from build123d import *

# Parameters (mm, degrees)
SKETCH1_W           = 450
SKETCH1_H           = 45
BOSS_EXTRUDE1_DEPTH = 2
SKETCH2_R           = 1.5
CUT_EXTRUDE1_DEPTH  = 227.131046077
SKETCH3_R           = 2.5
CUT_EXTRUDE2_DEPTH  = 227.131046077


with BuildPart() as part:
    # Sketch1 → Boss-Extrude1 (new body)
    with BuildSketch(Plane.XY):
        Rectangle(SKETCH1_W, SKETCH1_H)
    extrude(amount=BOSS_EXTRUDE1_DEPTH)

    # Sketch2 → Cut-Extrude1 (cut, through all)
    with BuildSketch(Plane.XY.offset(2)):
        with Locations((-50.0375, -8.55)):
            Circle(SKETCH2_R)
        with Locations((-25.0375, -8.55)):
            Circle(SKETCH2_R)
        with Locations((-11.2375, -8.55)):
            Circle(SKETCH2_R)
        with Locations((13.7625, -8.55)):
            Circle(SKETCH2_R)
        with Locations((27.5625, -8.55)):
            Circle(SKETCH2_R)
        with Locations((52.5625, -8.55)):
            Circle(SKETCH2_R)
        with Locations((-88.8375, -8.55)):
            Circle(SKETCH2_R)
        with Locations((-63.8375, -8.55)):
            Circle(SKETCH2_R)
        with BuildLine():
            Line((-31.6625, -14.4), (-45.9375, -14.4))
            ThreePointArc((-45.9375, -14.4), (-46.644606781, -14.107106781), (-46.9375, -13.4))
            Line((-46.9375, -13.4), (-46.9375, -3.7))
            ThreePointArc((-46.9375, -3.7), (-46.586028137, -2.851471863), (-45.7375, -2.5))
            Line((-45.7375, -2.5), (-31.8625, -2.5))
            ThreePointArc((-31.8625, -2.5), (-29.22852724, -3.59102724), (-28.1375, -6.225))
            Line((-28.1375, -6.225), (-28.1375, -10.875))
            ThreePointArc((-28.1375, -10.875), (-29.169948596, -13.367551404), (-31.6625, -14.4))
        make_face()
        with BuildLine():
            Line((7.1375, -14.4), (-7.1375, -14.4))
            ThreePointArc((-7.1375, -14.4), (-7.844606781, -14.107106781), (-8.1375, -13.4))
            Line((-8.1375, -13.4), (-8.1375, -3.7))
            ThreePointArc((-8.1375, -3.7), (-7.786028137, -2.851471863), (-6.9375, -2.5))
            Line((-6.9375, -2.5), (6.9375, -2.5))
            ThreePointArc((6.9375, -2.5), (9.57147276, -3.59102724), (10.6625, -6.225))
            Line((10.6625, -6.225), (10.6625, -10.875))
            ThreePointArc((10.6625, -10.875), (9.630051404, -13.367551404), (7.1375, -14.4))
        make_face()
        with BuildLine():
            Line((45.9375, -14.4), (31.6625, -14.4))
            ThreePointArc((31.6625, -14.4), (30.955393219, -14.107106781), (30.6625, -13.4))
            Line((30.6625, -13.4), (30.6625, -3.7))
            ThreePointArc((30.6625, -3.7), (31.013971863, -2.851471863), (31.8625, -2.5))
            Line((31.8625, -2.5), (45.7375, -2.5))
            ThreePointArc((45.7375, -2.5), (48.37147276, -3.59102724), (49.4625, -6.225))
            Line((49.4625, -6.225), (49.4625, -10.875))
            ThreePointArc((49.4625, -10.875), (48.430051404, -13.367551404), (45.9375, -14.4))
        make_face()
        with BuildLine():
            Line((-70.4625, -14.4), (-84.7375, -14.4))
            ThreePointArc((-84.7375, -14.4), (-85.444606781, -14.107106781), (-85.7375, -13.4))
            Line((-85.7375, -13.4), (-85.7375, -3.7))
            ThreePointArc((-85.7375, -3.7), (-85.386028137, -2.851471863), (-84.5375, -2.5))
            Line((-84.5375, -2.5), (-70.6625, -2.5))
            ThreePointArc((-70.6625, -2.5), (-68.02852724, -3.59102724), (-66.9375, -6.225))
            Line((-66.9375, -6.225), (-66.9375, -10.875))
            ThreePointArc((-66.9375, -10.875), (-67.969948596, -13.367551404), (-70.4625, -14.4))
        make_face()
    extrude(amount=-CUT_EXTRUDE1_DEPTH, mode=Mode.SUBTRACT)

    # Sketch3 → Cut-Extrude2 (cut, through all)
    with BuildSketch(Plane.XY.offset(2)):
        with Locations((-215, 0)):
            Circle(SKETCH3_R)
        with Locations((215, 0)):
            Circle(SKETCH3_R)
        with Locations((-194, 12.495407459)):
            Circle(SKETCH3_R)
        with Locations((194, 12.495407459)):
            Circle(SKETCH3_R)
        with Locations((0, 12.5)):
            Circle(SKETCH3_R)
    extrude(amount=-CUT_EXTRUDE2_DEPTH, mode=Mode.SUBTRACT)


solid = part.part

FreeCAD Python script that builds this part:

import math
import FreeCAD as App
import Part
import Sketcher

V = App.Vector
Q = App.Units.Quantity


def add_polygon(sketch, points):
    """Adds a closed chain of lines whose ends are joined by coincident constraints."""
    first, n = sketch.GeometryCount, len(points)
    for a, b in zip(points, points[1:] + points[:1]):
        sketch.addGeometry(Part.LineSegment(App.Vector(*a, 0), App.Vector(*b, 0)), False)
    for i in range(n):
        sketch.addConstraint(Sketcher.Constraint("Coincident", first + i, 2, first + (i + 1) % n, 1))

doc = App.newDocument("Part")
params = doc.addObject("Spreadsheet::Sheet", "Params")
for row, (alias, value) in enumerate([
    ("sketch1_width", "450 mm"),
    ("sketch1_height", "45 mm"),
    ("pad1_length", "2 mm"),
    ("sketch2_diameter", "3 mm"),
    ("sketch2_radius", "1 mm"),
    ("sketch2_radius2", "1.2 mm"),
    ("sketch2_height", "9.7 mm"),
    ("sketch3_diameter", "5 mm"),
], start=1):
    params.set(f"A{row}", alias)
    params.set(f"B{row}", "=" + value)
    params.setAlias(f"B{row}", alias)

body = doc.addObject("PartDesign::Body", "Body")

# Sketch on XY plane
sketch1 = body.newObject("Sketcher::SketchObject", "Sketch")
sketch1.AttachmentSupport = (doc.getObject("XY_Plane"), [""])
sketch1.MapMode = "FlatFace"
add_polygon(sketch1, [(-225, 22), (-225, -22), (225, -22), (225, 22)])  # lines 0-3
sketch1.addConstraint(Sketcher.Constraint("Vertical", 0))
sketch1.addConstraint(Sketcher.Constraint("Horizontal", 1))
sketch1.addConstraint(Sketcher.Constraint("Vertical", 2))
sketch1.addConstraint(Sketcher.Constraint("Horizontal", 3))
sketch1.addConstraint(Sketcher.Constraint("Symmetric", 0, 2, 2, 2, -1, 1))
sketch1.addConstraint(Sketcher.Constraint("DistanceX", 1, 1, 1, 2, Q("450 mm")))
sketch1.addConstraint(Sketcher.Constraint("DistanceY", 0, 2, 0, 1, Q("45 mm")))
sketch1.setExpression("Constraints[9]", "Params.sketch1_width")
sketch1.setExpression("Constraints[10]", "Params.sketch1_height")
pad1 = body.newObject("PartDesign::Pad", "Pad")
pad1.Profile = sketch1
pad1.setExpression("Length", "Params.pad1_length")

# Sketch on XY plane
sketch2 = body.newObject("Sketcher::SketchObject", "Sketch001")
sketch2.AttachmentSupport = (doc.getObject("XY_Plane"), [""])
sketch2.MapMode = "FlatFace"
sketch2.AttachmentOffset = App.Placement(V(0, 0, 2), App.Rotation())
sketch2.addGeometry(Part.Circle(V(-50, -8.6, 0), V(0, 0, 1), 1.5), False)
sketch2.addGeometry(Part.Circle(V(-25, -8.6, 0), V(0, 0, 1), 1.5), False)
sketch2.addGeometry(Part.Circle(V(-11.2, -8.6, 0), V(0, 0, 1), 1.5), False)
sketch2.addGeometry(Part.Circle(V(13.8, -8.6, 0), V(0, 0, 1), 1.5), False)
sketch2.addGeometry(Part.Circle(V(27.6, -8.6, 0), V(0, 0, 1), 1.5), False)
sketch2.addGeometry(Part.Circle(V(52.6, -8.6, 0), V(0, 0, 1), 1.5), False)
sketch2.addGeometry(Part.Circle(V(-88.8, -8.6, 0), V(0, 0, 1), 1.5), False)
sketch2.addGeometry(Part.Circle(V(-63.8, -8.6, 0), V(0, 0, 1), 1.5), False)
sketch2.addGeometry(Part.LineSegment(V(-45.9, -14.4, 0), V(-31.7, -14.4, 0)), False)
sketch2.addGeometry(Part.ArcOfCircle(Part.Circle(V(-31.7, -10.9, 0), V(0, 0, 1), 3.5), math.radians(-90), math.radians(0)), False)
sketch2.addGeometry(Part.LineSegment(V(-28.1, -10.9, 0), V(-28.1, -6.2, 0)), False)
sketch2.addGeometry(Part.ArcOfCircle(Part.Circle(V(-31.9, -6.2, 0), V(0, 0, 1), 3.7), math.radians(0), math.radians(90)), False)
sketch2.addGeometry(Part.LineSegment(V(-31.9, -2.5, 0), V(-45.7, -2.5, 0)), False)
sketch2.addGeometry(Part.ArcOfCircle(Part.Circle(V(-45.7, -3.7, 0), V(0, 0, 1), 1.2), math.radians(90), math.radians(180)), False)
sketch2.addGeometry(Part.LineSegment(V(-46.9, -3.7, 0), V(-46.9, -13.4, 0)), False)
sketch2.addGeometry(Part.ArcOfCircle(Part.Circle(V(-45.9, -13.4, 0), V(0, 0, 1), 1), math.radians(-180), math.radians(-90)), False)
sketch2.addGeometry(Part.LineSegment(V(-7.1, -14.4, 0), V(7.1, -14.4, 0)), False)
sketch2.addGeometry(Part.ArcOfCircle(Part.Circle(V(7.1, -10.9, 0), V(0, 0, 1), 3.5), math.radians(-90), math.radians(0)), False)
sketch2.addGeometry(Part.LineSegment(V(10.7, -10.9, 0), V(10.7, -6.2, 0)), False)
sketch2.addGeometry(Part.ArcOfCircle(Part.Circle(V(6.9, -6.2, 0), V(0, 0, 1), 3.7), math.radians(0), math.radians(90)), False)
sketch2.addGeometry(Part.LineSegment(V(6.9, -2.5, 0), V(-6.9, -2.5, 0)), False)
sketch2.addGeometry(Part.ArcOfCircle(Part.Circle(V(-6.9, -3.7, 0), V(0, 0, 1), 1.2), math.radians(90), math.radians(180)), False)
sketch2.addGeometry(Part.LineSegment(V(-8.1, -3.7, 0), V(-8.1, -13.4, 0)), False)
sketch2.addGeometry(Part.ArcOfCircle(Part.Circle(V(-7.1, -13.4, 0), V(0, 0, 1), 1), math.radians(-180), math.radians(-90)), False)
sketch2.addGeometry(Part.LineSegment(V(31.7, -14.4, 0), V(45.9, -14.4, 0)), False)
sketch2.addGeometry(Part.ArcOfCircle(Part.Circle(V(45.9, -10.9, 0), V(0, 0, 1), 3.5), math.radians(-90), math.radians(0)), False)
sketch2.addGeometry(Part.LineSegment(V(49.5, -10.9, 0), V(49.5, -6.2, 0)), False)
sketch2.addGeometry(Part.ArcOfCircle(Part.Circle(V(45.7, -6.2, 0), V(0, 0, 1), 3.7), math.radians(0), math.radians(90)), False)
sketch2.addGeometry(Part.LineSegment(V(45.7, -2.5, 0), V(31.9, -2.5, 0)), False)
sketch2.addGeometry(Part.ArcOfCircle(Part.Circle(V(31.9, -3.7, 0), V(0, 0, 1), 1.2), math.radians(90), math.radians(180)), False)
sketch2.addGeometry(Part.LineSegment(V(30.7, -3.7, 0), V(30.7, -13.4, 0)), False)
sketch2.addGeometry(Part.ArcOfCircle(Part.Circle(V(31.7, -13.4, 0), V(0, 0, 1), 1), math.radians(-180), math.radians(-90)), False)
sketch2.addGeometry(Part.LineSegment(V(-84.7, -14.4, 0), V(-70.5, -14.4, 0)), False)
sketch2.addGeometry(Part.ArcOfCircle(Part.Circle(V(-70.5, -10.9, 0), V(0, 0, 1), 3.5), math.radians(-90), math.radians(0)), False)
sketch2.addGeometry(Part.LineSegment(V(-66.9, -10.9, 0), V(-66.9, -6.2, 0)), False)
sketch2.addGeometry(Part.ArcOfCircle(Part.Circle(V(-70.7, -6.2, 0), V(0, 0, 1), 3.7), math.radians(0), math.radians(90)), False)
sketch2.addGeometry(Part.LineSegment(V(-70.7, -2.5, 0), V(-84.5, -2.5, 0)), False)
sketch2.addGeometry(Part.ArcOfCircle(Part.Circle(V(-84.5, -3.7, 0), V(0, 0, 1), 1.2), math.radians(90), math.radians(180)), False)
sketch2.addGeometry(Part.LineSegment(V(-85.7, -3.7, 0), V(-85.7, -13.4, 0)), False)
sketch2.addGeometry(Part.ArcOfCircle(Part.Circle(V(-84.7, -13.4, 0), V(0, 0, 1), 1), math.radians(-180), math.radians(-90)), False)
sketch2.addConstraint(Sketcher.Constraint("Tangent", 8, 2, 9, 1))
sketch2.addConstraint(Sketcher.Constraint("Tangent", 9, 2, 10, 1))
sketch2.addConstraint(Sketcher.Constraint("Tangent", 10, 2, 11, 1))
sketch2.addConstraint(Sketcher.Constraint("Tangent", 11, 2, 12, 1))
sketch2.addConstraint(Sketcher.Constraint("Tangent", 12, 2, 13, 1))
sketch2.addConstraint(Sketcher.Constraint("Tangent", 13, 2, 14, 1))
sketch2.addConstraint(Sketcher.Constraint("Tangent", 14, 2, 15, 1))
sketch2.addConstraint(Sketcher.Constraint("Tangent", 15, 2, 8, 1))
sketch2.addConstraint(Sketcher.Constraint("Tangent", 16, 2, 17, 1))
sketch2.addConstraint(Sketcher.Constraint("Tangent", 17, 2, 18, 1))
sketch2.addConstraint(Sketcher.Constraint("Tangent", 18, 2, 19, 1))
sketch2.addConstraint(Sketcher.Constraint("Tangent", 19, 2, 20, 1))
sketch2.addConstraint(Sketcher.Constraint("Tangent", 20, 2, 21, 1))
sketch2.addConstraint(Sketcher.Constraint("Tangent", 21, 2, 22, 1))
sketch2.addConstraint(Sketcher.Constraint("Tangent", 22, 2, 23, 1))
sketch2.addConstraint(Sketcher.Constraint("Tangent", 23, 2, 16, 1))
sketch2.addConstraint(Sketcher.Constraint("Tangent", 24, 2, 25, 1))
sketch2.addConstraint(Sketcher.Constraint("Tangent", 25, 2, 26, 1))
sketch2.addConstraint(Sketcher.Constraint("Tangent", 26, 2, 27, 1))
sketch2.addConstraint(Sketcher.Constraint("Tangent", 27, 2, 28, 1))
sketch2.addConstraint(Sketcher.Constraint("Tangent", 28, 2, 29, 1))
sketch2.addConstraint(Sketcher.Constraint("Tangent", 29, 2, 30, 1))
sketch2.addConstraint(Sketcher.Constraint("Tangent", 30, 2, 31, 1))
sketch2.addConstraint(Sketcher.Constraint("Tangent", 31, 2, 24, 1))
sketch2.addConstraint(Sketcher.Constraint("Tangent", 32, 2, 33, 1))
sketch2.addConstraint(Sketcher.Constraint("Tangent", 33, 2, 34, 1))
sketch2.addConstraint(Sketcher.Constraint("Tangent", 34, 2, 35, 1))
sketch2.addConstraint(Sketcher.Constraint("Tangent", 35, 2, 36, 1))
sketch2.addConstraint(Sketcher.Constraint("Tangent", 36, 2, 37, 1))
sketch2.addConstraint(Sketcher.Constraint("Tangent", 37, 2, 38, 1))
sketch2.addConstraint(Sketcher.Constraint("Tangent", 38, 2, 39, 1))
sketch2.addConstraint(Sketcher.Constraint("Tangent", 39, 2, 32, 1))
sketch2.addConstraint(Sketcher.Constraint("Horizontal", 8))
sketch2.addConstraint(Sketcher.Constraint("Vertical", 10))
sketch2.addConstraint(Sketcher.Constraint("Horizontal", 12))
sketch2.addConstraint(Sketcher.Constraint("Vertical", 14))
sketch2.addConstraint(Sketcher.Constraint("Horizontal", 16))
sketch2.addConstraint(Sketcher.Constraint("Vertical", 18))
sketch2.addConstraint(Sketcher.Constraint("Horizontal", 20))
sketch2.addConstraint(Sketcher.Constraint("Vertical", 22))
sketch2.addConstraint(Sketcher.Constraint("Horizontal", 24))
sketch2.addConstraint(Sketcher.Constraint("Vertical", 26))
sketch2.addConstraint(Sketcher.Constraint("Horizontal", 28))
sketch2.addConstraint(Sketcher.Constraint("Vertical", 30))
sketch2.addConstraint(Sketcher.Constraint("Horizontal", 32))
sketch2.addConstraint(Sketcher.Constraint("Vertical", 34))
sketch2.addConstraint(Sketcher.Constraint("Horizontal", 36))
sketch2.addConstraint(Sketcher.Constraint("Vertical", 38))
sketch2.addConstraint(Sketcher.Constraint("Equal", 0, 1))
sketch2.addConstraint(Sketcher.Constraint("Equal", 1, 2))
sketch2.addConstraint(Sketcher.Constraint("Equal", 2, 3))
sketch2.addConstraint(Sketcher.Constraint("Equal", 3, 4))
sketch2.addConstraint(Sketcher.Constraint("Equal", 4, 5))
sketch2.addConstraint(Sketcher.Constraint("Equal", 5, 6))
sketch2.addConstraint(Sketcher.Constraint("Equal", 6, 7))
sketch2.addConstraint(Sketcher.Constraint("Equal", 9, 17))
sketch2.addConstraint(Sketcher.Constraint("Equal", 11, 19))
sketch2.addConstraint(Sketcher.Constraint("Equal", 13, 21))
sketch2.addConstraint(Sketcher.Constraint("Equal", 15, 23))
sketch2.addConstraint(Sketcher.Constraint("Equal", 17, 25))
sketch2.addConstraint(Sketcher.Constraint("Equal", 19, 27))
sketch2.addConstraint(Sketcher.Constraint("Equal", 21, 29))
sketch2.addConstraint(Sketcher.Constraint("Equal", 23, 31))
sketch2.addConstraint(Sketcher.Constraint("Equal", 25, 33))
sketch2.addConstraint(Sketcher.Constraint("Equal", 27, 35))
sketch2.addConstraint(Sketcher.Constraint("Equal", 29, 37))
sketch2.addConstraint(Sketcher.Constraint("Equal", 31, 39))
sketch2.addConstraint(Sketcher.Constraint("Symmetric", 15, 2, 24, 2, -2))
sketch2.addConstraint(Sketcher.Constraint("Symmetric", 12, 2, 27, 2, -2))
sketch2.addConstraint(Sketcher.Constraint("Horizontal", 0, 3, 1, 3))
sketch2.addConstraint(Sketcher.Constraint("Horizontal", 1, 3, 2, 3))
sketch2.addConstraint(Sketcher.Constraint("Horizontal", 2, 3, 3, 3))
sketch2.addConstraint(Sketcher.Constraint("Horizontal", 3, 3, 4, 3))
sketch2.addConstraint(Sketcher.Constraint("Horizontal", 4, 3, 5, 3))
sketch2.addConstraint(Sketcher.Constraint("Horizontal", 5, 3, 6, 3))
sketch2.addConstraint(Sketcher.Constraint("Horizontal", 6, 3, 7, 3))
sketch2.addConstraint(Sketcher.Constraint("Horizontal", 9, 3, 17, 3))
sketch2.addConstraint(Sketcher.Constraint("Horizontal", 11, 3, 19, 3))
sketch2.addConstraint(Sketcher.Constraint("Horizontal", 25, 3, 33, 3))
sketch2.addConstraint(Sketcher.Constraint("Horizontal", 27, 3, 35, 3))
sketch2.addConstraint(Sketcher.Constraint("Equal", 8, 16))
sketch2.addConstraint(Sketcher.Constraint("Equal", 16, 24))
sketch2.addConstraint(Sketcher.Constraint("Equal", 24, 32))
sketch2.addConstraint(Sketcher.Constraint("Diameter", 0, Q("3 mm")))
sketch2.addConstraint(Sketcher.Constraint("Radius", 15, Q("1 mm")))
sketch2.addConstraint(Sketcher.Constraint("Radius", 13, Q("1.2 mm")))
sketch2.addConstraint(Sketcher.Constraint("DistanceY", 14, 2, 14, 1, Q("9.7 mm")))
sketch2.addConstraint(Sketcher.Constraint("Radius", 9, Q("3.525 mm")))
sketch2.addConstraint(Sketcher.Constraint("DistanceX", 0, 3, 1, 3, Q("25 mm")))
sketch2.addConstraint(Sketcher.Constraint("DistanceX", 2, 3, 3, 3, Q("25 mm")))
sketch2.addConstraint(Sketcher.Constraint("DistanceX", 4, 3, 5, 3, Q("25 mm")))
sketch2.addConstraint(Sketcher.Constraint("DistanceX", 6, 3, 7, 3, Q("25 mm")))
sketch2.addConstraint(Sketcher.Constraint("DistanceX", 19, 3, 25, 3, Q("39 mm")))
sketch2.addConstraint(Sketcher.Constraint("DistanceY", 13, 3, -1, 1, Q("3.7 mm")))
sketch2.addConstraint(Sketcher.Constraint("DistanceX", 1, 3, 2, 3, Q("13.8 mm")))
sketch2.addConstraint(Sketcher.Constraint("DistanceX", 3, 3, 4, 3, Q("13.8 mm")))
sketch2.addConstraint(Sketcher.Constraint("DistanceX", 6, 3, 0, 3, Q("38.8 mm")))
sketch2.addConstraint(Sketcher.Constraint("DistanceX", 0, 3, 13, 3, Q("4.3 mm")))
sketch2.addConstraint(Sketcher.Constraint("DistanceX", 9, 3, 17, 3, Q("38.8 mm")))
sketch2.addConstraint(Sketcher.Constraint("DistanceX", 6, 3, 37, 3, Q("4.3 mm")))
sketch2.addConstraint(Sketcher.Constraint("DistanceX", 9, 2, 1, 3, Q("3.1 mm")))
sketch2.addConstraint(Sketcher.Constraint("DistanceY", 0, 3, -1, 1, Q("8.55 mm")))
sketch2.setExpression("Constraints[83]", "Params.sketch2_diameter")
sketch2.setExpression("Constraints[84]", "Params.sketch2_radius")
sketch2.setExpression("Constraints[85]", "Params.sketch2_radius2")
sketch2.setExpression("Constraints[86]", "Params.sketch2_height")
pocket1 = body.newObject("PartDesign::Pocket", "Pocket")
pocket1.Profile = sketch2
pocket1.Type = "ThroughAll"

# Sketch on XY plane
sketch3 = body.newObject("Sketcher::SketchObject", "Sketch002")
sketch3.AttachmentSupport = (doc.getObject("XY_Plane"), [""])
sketch3.MapMode = "FlatFace"
sketch3.AttachmentOffset = App.Placement(V(0, 0, 2), App.Rotation())
sketch3.addGeometry(Part.Circle(V(-215, 0, 0), V(0, 0, 1), 2.5), False)
sketch3.addGeometry(Part.Circle(V(215, 0, 0), V(0, 0, 1), 2.5), False)
sketch3.addGeometry(Part.Circle(V(-194, 12.5, 0), V(0, 0, 1), 2.5), False)
sketch3.addGeometry(Part.Circle(V(194, 12.5, 0), V(0, 0, 1), 2.5), False)
sketch3.addGeometry(Part.Circle(V(0, 12.5, 0), V(0, 0, 1), 2.5), False)
sketch3.addConstraint(Sketcher.Constraint("Equal", 0, 1))
sketch3.addConstraint(Sketcher.Constraint("Equal", 1, 2))
sketch3.addConstraint(Sketcher.Constraint("Equal", 2, 3))
sketch3.addConstraint(Sketcher.Constraint("Equal", 3, 4))
sketch3.addConstraint(Sketcher.Constraint("Symmetric", 0, 3, 1, 3, -1, 1))
sketch3.addConstraint(Sketcher.Constraint("Symmetric", 2, 3, 3, 3, -2))
sketch3.addConstraint(Sketcher.Constraint("PointOnObject", 0, 3, -1))
sketch3.addConstraint(Sketcher.Constraint("PointOnObject", 4, 3, -2))
sketch3.addConstraint(Sketcher.Constraint("Diameter", 0, Q("5 mm")))
sketch3.addConstraint(Sketcher.Constraint("DistanceX", 0, 3, -1, 1, Q("215 mm")))
sketch3.addConstraint(Sketcher.Constraint("DistanceX", 2, 3, -1, 1, Q("194 mm")))
sketch3.addConstraint(Sketcher.Constraint("DistanceY", -1, 1, 4, 3, Q("12.5 mm")))
sketch3.addConstraint(Sketcher.Constraint("DistanceY", -1, 1, 2, 3, Q("12.495407 mm")))
sketch3.setExpression("Constraints[8]", "Params.sketch3_diameter")
pocket2 = body.newObject("PartDesign::Pocket", "Pocket001")
pocket2.Profile = sketch3
pocket2.Type = "ThroughAll"

doc.recompute()
